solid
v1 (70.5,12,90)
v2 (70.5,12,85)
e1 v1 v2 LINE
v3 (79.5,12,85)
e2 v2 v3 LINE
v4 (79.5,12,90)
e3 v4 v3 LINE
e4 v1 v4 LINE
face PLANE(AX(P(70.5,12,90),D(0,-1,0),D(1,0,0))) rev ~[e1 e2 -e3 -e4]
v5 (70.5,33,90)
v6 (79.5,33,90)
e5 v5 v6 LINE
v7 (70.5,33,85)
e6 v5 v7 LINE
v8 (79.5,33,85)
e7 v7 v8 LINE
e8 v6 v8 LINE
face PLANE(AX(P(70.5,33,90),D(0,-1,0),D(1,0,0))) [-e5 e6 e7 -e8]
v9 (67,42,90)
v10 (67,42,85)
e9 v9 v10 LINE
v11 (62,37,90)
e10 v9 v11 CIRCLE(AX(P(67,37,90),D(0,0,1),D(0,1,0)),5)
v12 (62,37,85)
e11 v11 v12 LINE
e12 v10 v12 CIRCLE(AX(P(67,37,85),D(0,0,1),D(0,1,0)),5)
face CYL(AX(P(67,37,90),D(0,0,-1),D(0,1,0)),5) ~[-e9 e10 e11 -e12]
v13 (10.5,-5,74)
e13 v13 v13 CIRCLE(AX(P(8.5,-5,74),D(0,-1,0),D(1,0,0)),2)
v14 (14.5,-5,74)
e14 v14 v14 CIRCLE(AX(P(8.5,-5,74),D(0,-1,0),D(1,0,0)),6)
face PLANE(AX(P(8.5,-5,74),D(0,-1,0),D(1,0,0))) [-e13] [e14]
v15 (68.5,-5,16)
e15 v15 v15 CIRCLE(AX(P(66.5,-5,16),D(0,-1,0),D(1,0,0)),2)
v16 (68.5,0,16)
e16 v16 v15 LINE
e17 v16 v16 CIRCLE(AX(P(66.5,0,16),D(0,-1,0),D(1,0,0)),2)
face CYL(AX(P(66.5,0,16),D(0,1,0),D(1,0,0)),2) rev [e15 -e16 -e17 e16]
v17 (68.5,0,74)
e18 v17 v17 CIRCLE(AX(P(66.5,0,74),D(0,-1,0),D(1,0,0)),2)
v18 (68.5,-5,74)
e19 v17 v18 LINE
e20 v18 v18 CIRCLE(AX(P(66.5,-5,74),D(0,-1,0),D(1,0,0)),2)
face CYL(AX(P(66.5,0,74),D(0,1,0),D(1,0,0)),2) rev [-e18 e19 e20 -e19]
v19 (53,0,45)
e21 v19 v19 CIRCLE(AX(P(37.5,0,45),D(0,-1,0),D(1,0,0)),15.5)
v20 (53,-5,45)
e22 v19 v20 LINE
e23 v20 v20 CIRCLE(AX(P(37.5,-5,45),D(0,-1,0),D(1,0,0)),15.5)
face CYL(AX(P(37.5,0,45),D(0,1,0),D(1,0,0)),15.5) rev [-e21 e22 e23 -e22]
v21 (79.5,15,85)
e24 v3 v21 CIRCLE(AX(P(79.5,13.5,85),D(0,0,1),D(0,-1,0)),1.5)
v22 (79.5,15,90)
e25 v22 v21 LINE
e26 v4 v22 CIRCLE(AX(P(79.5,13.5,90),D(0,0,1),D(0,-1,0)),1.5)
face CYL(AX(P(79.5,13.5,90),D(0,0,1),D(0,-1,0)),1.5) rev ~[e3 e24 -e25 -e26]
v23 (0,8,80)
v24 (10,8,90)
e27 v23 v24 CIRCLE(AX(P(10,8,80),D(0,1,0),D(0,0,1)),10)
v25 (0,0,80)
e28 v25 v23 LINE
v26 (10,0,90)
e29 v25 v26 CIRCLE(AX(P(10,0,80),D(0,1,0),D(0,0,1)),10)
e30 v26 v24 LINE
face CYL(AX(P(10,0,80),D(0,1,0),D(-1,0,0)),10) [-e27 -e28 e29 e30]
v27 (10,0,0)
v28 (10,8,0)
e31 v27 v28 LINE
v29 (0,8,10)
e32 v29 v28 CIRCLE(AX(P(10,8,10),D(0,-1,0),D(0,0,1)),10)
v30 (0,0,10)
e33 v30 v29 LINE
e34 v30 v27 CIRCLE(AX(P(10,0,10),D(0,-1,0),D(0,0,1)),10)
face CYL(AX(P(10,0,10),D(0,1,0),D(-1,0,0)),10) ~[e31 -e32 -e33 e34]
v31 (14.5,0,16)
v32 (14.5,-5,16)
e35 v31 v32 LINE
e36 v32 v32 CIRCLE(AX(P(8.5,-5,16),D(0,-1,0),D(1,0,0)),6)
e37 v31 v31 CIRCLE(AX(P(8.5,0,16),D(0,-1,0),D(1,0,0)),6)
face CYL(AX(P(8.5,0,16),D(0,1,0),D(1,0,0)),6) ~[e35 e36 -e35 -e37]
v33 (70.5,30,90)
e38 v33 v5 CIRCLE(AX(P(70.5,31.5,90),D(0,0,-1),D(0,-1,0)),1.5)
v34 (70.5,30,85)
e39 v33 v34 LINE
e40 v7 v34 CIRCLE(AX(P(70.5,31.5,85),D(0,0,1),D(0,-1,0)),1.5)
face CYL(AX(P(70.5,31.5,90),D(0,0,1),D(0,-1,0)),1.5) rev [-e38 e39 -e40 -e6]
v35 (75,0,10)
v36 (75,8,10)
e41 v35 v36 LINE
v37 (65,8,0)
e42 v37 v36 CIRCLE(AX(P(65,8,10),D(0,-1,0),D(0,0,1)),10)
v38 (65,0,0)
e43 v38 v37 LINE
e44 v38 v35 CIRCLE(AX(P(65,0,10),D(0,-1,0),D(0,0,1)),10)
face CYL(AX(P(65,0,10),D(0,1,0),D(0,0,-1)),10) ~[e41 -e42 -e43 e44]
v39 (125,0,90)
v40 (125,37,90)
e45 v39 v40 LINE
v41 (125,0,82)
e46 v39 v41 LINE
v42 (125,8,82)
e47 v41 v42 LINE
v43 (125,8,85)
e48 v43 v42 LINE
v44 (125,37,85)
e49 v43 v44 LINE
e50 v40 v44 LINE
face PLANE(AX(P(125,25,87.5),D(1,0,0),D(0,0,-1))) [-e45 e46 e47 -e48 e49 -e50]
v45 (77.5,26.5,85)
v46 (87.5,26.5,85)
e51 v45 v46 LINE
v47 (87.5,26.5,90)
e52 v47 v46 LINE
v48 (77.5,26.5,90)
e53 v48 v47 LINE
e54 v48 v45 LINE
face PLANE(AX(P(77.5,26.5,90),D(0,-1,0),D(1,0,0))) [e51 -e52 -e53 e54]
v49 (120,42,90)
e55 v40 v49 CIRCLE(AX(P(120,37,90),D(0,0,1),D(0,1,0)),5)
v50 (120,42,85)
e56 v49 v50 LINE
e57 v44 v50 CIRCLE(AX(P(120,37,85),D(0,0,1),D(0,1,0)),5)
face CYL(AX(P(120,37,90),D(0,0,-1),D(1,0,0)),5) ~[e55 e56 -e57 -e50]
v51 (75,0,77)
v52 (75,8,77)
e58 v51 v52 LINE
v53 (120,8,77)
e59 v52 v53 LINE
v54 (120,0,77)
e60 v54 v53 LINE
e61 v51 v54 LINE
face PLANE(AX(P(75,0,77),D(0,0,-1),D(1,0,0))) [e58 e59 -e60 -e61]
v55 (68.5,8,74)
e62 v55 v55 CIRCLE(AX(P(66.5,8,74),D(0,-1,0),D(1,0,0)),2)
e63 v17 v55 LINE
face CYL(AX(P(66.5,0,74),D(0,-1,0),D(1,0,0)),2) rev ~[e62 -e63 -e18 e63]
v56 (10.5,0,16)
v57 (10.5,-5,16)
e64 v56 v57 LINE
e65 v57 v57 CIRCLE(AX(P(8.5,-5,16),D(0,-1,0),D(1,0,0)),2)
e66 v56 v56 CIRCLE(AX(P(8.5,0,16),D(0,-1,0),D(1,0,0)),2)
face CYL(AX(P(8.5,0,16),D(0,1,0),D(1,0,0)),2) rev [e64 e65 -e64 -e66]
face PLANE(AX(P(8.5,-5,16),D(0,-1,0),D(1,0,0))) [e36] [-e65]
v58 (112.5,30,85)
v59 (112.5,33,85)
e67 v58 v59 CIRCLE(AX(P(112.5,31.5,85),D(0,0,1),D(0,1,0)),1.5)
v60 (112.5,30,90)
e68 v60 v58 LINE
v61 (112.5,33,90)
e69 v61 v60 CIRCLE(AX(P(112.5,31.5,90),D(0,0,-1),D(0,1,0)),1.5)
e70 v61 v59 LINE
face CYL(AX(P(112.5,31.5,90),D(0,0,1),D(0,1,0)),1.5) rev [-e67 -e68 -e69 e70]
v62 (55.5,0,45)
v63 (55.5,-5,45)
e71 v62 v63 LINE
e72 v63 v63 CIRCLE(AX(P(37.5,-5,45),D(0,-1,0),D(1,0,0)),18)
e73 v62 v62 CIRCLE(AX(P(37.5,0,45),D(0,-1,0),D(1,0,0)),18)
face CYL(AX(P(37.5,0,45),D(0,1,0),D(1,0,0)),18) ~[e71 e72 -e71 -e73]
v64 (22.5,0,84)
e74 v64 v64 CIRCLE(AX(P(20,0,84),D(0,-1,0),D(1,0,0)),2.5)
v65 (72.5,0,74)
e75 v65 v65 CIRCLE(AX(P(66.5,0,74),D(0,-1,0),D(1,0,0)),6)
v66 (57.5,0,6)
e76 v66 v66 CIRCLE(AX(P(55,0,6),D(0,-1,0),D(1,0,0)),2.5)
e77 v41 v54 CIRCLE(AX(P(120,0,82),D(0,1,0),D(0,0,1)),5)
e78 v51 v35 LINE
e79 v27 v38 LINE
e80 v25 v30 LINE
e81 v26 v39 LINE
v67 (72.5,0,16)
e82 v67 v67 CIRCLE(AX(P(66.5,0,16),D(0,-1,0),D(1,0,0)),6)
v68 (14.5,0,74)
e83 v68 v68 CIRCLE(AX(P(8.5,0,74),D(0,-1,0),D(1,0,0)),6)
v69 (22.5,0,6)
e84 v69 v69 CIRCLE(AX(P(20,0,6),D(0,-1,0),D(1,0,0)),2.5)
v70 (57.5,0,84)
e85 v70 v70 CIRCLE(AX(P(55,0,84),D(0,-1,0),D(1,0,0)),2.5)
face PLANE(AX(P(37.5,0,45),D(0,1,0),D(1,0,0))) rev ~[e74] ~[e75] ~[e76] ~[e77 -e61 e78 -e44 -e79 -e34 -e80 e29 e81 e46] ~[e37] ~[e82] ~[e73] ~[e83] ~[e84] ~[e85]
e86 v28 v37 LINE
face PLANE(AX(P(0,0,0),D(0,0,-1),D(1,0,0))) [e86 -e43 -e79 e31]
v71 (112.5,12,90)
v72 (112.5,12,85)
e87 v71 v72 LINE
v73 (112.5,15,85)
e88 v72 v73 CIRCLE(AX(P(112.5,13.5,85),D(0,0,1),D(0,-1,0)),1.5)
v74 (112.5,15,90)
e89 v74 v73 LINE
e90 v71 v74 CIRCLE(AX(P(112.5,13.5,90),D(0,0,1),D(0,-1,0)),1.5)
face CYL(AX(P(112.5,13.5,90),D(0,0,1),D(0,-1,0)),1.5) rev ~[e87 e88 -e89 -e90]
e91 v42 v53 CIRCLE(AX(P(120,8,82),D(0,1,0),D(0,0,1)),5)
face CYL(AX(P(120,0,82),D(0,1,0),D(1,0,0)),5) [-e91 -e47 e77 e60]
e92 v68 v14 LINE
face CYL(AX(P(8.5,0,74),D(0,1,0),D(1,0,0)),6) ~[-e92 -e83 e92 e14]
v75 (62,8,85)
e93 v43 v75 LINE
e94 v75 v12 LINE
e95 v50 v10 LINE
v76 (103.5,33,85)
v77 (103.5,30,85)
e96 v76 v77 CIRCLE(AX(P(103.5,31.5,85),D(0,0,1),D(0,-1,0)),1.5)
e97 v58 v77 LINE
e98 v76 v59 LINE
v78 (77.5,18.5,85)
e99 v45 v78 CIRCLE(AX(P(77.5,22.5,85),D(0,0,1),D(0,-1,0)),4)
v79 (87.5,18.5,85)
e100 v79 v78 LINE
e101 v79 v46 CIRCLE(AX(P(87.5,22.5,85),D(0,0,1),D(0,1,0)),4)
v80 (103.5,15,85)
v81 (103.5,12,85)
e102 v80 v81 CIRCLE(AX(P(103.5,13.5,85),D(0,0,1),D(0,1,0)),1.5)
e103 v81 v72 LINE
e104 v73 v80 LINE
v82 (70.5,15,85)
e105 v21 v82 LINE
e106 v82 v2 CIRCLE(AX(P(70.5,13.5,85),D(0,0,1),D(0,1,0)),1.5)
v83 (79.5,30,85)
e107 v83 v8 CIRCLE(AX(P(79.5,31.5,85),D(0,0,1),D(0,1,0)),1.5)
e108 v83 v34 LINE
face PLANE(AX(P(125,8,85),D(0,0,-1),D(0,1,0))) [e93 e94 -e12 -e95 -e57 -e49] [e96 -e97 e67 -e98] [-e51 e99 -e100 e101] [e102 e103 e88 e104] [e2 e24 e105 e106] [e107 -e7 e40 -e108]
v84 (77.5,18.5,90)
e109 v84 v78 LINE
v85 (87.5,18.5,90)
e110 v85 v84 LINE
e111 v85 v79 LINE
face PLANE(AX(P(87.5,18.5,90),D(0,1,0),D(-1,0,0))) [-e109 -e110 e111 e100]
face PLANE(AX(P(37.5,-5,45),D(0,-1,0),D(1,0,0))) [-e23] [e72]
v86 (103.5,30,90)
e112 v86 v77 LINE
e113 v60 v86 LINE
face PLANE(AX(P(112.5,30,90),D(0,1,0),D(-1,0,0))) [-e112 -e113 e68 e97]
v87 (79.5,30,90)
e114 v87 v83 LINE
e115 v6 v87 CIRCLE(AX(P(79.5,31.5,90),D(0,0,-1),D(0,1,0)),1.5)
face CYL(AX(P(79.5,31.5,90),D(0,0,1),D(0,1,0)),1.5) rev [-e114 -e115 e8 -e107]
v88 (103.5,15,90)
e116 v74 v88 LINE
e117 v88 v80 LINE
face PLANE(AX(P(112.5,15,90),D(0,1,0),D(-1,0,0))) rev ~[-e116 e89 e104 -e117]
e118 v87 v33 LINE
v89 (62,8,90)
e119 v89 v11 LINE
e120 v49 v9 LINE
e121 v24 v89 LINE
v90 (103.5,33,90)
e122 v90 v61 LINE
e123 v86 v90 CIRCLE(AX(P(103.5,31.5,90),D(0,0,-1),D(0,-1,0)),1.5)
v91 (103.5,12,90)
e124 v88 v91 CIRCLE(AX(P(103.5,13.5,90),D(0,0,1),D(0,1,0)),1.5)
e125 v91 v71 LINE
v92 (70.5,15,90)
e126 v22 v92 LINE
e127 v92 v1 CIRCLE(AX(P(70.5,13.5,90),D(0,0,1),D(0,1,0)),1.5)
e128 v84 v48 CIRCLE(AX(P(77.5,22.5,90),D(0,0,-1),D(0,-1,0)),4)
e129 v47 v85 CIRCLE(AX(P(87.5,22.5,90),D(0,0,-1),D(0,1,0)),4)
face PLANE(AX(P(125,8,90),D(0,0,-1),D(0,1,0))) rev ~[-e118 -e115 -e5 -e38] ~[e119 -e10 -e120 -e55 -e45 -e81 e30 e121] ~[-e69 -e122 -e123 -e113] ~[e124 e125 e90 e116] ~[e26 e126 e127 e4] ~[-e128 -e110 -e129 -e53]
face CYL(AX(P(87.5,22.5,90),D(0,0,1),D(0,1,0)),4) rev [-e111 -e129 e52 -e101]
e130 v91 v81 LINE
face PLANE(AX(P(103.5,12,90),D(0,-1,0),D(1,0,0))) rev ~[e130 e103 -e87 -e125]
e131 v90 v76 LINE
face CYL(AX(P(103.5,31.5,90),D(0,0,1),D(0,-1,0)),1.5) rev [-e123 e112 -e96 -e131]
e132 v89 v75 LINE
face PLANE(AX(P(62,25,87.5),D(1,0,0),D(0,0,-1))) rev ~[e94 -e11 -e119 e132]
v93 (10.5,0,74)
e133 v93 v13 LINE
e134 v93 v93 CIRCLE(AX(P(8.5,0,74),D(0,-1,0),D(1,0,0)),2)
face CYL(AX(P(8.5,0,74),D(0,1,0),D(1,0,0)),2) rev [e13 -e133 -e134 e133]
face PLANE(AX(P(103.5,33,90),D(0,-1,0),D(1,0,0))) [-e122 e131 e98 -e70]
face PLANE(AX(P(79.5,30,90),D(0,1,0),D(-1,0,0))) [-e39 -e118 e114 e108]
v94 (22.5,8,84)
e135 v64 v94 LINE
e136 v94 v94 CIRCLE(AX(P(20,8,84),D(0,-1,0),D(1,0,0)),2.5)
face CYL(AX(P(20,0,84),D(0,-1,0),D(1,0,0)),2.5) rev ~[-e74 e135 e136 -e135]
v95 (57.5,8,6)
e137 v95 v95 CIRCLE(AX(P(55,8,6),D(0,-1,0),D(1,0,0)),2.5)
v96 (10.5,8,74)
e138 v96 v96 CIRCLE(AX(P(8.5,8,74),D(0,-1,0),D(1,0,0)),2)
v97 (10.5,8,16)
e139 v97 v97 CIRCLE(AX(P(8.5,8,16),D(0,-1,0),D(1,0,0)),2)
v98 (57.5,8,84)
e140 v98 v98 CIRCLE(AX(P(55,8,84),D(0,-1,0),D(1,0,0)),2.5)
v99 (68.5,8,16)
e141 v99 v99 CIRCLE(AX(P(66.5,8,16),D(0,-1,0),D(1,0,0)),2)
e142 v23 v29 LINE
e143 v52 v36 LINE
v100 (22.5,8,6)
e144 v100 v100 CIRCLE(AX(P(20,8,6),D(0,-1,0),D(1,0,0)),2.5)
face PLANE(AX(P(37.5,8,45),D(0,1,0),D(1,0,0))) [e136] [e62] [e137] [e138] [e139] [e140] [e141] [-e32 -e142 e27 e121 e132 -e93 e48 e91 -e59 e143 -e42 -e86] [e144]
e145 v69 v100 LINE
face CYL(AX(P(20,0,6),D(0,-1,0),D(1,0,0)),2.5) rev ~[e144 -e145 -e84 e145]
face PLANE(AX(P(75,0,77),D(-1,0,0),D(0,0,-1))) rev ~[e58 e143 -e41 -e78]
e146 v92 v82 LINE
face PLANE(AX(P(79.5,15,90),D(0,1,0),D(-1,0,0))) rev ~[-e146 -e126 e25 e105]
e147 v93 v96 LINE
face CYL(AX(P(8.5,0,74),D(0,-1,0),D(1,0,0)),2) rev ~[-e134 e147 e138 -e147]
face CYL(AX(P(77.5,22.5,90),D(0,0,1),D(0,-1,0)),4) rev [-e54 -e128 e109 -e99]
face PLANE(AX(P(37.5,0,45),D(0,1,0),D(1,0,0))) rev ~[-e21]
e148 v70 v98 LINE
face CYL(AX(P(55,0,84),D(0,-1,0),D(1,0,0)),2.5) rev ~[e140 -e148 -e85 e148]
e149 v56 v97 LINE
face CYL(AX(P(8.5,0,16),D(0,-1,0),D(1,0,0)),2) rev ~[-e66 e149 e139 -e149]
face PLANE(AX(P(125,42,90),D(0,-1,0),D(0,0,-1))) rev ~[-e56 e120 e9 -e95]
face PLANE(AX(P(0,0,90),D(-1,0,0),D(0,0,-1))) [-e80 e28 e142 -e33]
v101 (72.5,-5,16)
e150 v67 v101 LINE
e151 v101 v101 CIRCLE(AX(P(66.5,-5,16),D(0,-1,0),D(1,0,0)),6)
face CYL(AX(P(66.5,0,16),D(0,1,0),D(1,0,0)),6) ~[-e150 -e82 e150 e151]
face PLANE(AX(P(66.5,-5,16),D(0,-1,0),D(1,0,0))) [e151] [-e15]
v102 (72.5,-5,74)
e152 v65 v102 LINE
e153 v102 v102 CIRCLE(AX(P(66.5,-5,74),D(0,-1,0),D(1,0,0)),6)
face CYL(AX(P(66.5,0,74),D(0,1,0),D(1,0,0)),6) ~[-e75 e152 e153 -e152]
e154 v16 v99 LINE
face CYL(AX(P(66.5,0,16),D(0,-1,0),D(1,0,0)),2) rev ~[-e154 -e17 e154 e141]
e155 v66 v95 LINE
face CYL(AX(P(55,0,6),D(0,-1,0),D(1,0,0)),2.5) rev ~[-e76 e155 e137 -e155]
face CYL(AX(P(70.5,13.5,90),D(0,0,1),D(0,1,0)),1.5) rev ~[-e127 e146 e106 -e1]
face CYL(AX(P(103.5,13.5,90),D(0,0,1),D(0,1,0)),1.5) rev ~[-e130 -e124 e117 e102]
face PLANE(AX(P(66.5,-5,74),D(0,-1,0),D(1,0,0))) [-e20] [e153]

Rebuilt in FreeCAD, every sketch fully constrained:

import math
import FreeCAD as App
import Part
import Sketcher
Q = App.Units.Quantity


def edges_at(feature, points):
    """Names of the edges that pass closest to the given points."""
    edges = feature.Shape.Edges
    near = lambda p: min(range(len(edges)), key=lambda i: edges[i].distToShape(Part.Vertex(*p))[0])
    return sorted({f"Edge{near(p) + 1}" for p in points})

doc = App.newDocument("Part")
params = doc.addObject("Spreadsheet::Sheet", "Params")
for row, (alias, value) in enumerate([
    ("sketch1_width", "125 mm"),
    ("sketch1_width2", "50 mm"),
    ("sketch1_height", "90 mm"),
    ("sketch1_height2", "13 mm"),
    ("pad1_length", "8 mm"),
    ("sketch2_diameter", "36 mm"),
    ("sketch2_diameter2", "31 mm"),
    ("pad2_length", "5 mm"),
    ("sketch3_diameter", "4 mm"),
    ("fillet_radius", "10 mm"),
    ("fillet2_radius", "10 mm"),
    ("fillet3_radius", "10 mm"),
    ("sketch4_diameter", "5 mm"),
    ("sketch5_diameter", "5 mm"),
    ("sketch6_diameter", "5 mm"),
    ("sketch7_diameter", "5 mm"),
    ("sketch8_width", "34 mm"),
    ("sketch8_height", "5 mm"),
    ("pad3_length", "63 mm"),
    ("fillet4_radius", "5 mm"),
    ("fillet5_radius", "5 mm"),
    ("fillet6_radius", "5 mm"),
    ("sketch9_radius", "4 mm"),
    ("sketch9_width", "10 mm"),
    ("sketch10_radius", "1.5 mm"),
    ("sketch10_width", "9 mm"),
    ("sketch11_radius", "1.5 mm"),
    ("sketch11_width", "9 mm"),
    ("sketch12_radius", "1.5 mm"),
    ("sketch12_width", "9 mm"),
    ("sketch13_radius", "1.5 mm"),
    ("sketch13_width", "9 mm"),
    ("sketch14_diameter", "12 mm"),
    ("sketch14_diameter2", "4 mm"),
    ("pad4_length", "5 mm"),
], start=1):
    params.set(f"A{row}", alias)
    params.set(f"B{row}", "=" + value)
    params.setAlias(f"B{row}", alias)

body = doc.addObject("PartDesign::Body", "Body")

# Sketch on XZ plane
sketch1 = body.newObject("Sketcher::SketchObject", "Sketch")
sketch1.AttachmentSupport = (doc.getObject("XZ_Plane"), [""])
sketch1.MapMode = "FlatFace"
sketch1.addGeometry([
    Part.LineSegment(App.Vector(0, 0, 0), App.Vector(0, 90, 0)),  # 0
    Part.LineSegment(App.Vector(0, 90, 0), App.Vector(125, 90, 0)),  # 1
    Part.LineSegment(App.Vector(125, 90, 0), App.Vector(125, 77, 0)),  # 2
    Part.LineSegment(App.Vector(125, 77, 0), App.Vector(75, 77, 0)),  # 3
    Part.LineSegment(App.Vector(75, 77, 0), App.Vector(75, 0, 0)),  # 4
    Part.LineSegment(App.Vector(75, 0, 0), App.Vector(0, 0, 0)),  # 5
], False)
sketch1.addConstraint([
    Sketcher.Constraint("Coincident", 0, 2, 1, 1),
    Sketcher.Constraint("Coincident", 1, 2, 2, 1),
    Sketcher.Constraint("Coincident", 2, 2, 3, 1),
    Sketcher.Constraint("Coincident", 3, 2, 4, 1),
    Sketcher.Constraint("Coincident", 4, 2, 5, 1),
    Sketcher.Constraint("Coincident", 5, 2, 0, 1),
    Sketcher.Constraint("Vertical", 0),
    Sketcher.Constraint("Horizontal", 1),
    Sketcher.Constraint("Vertical", 2),
    Sketcher.Constraint("Horizontal", 3),
    Sketcher.Constraint("Vertical", 4),
    Sketcher.Constraint("Horizontal", 5),
    Sketcher.Constraint("Coincident", 5, 2, -1, 1),
    Sketcher.Constraint("DistanceX", 1, 1, 1, 2, Q("125 mm")),
    Sketcher.Constraint("DistanceX", 3, 2, 3, 1, Q("50 mm")),
    Sketcher.Constraint("DistanceY", 0, 1, 0, 2, Q("90 mm")),
    Sketcher.Constraint("DistanceY", 2, 2, 2, 1, Q("13 mm")),
])
sketch1.setExpression("Constraints[13]", "Params.sketch1_width")
sketch1.setExpression("Constraints[14]", "Params.sketch1_width2")
sketch1.setExpression("Constraints[15]", "Params.sketch1_height")
sketch1.setExpression("Constraints[16]", "Params.sketch1_height2")
pad1 = body.newObject("PartDesign::Pad", "Pad")
pad1.Profile = sketch1
pad1.setExpression("Length", "Params.pad1_length")
pad1.Reversed = True

# Sketch on XZ plane
sketch2 = body.newObject("Sketcher::SketchObject", "Sketch001")
sketch2.AttachmentSupport = (doc.getObject("XZ_Plane"), [""])
sketch2.MapMode = "FlatFace"
sketch2.addGeometry([
    Part.Circle(App.Vector(38, 45, 0), App.Vector(0, 0, 1), 18),
    Part.Circle(App.Vector(38, 45, 0), App.Vector(0, 0, 1), 16),
], False)
sketch2.addConstraint([
    Sketcher.Constraint("Coincident", 1, 3, 0, 3),
    Sketcher.Constraint("Diameter", 0, Q("36 mm")),
    Sketcher.Constraint("Diameter", 1, Q("31 mm")),
    Sketcher.Constraint("DistanceY", -1, 1, 0, 3, Q("45 mm")),
    Sketcher.Constraint("DistanceX", -1, 1, 0, 3, Q("37.5 mm")),
])
sketch2.setExpression("Constraints[1]", "Params.sketch2_diameter")
sketch2.setExpression("Constraints[2]", "Params.sketch2_diameter2")
pad2 = body.newObject("PartDesign::Pad", "Pad001")
pad2.Profile = sketch2
pad2.setExpression("Length", "Params.pad2_length")

# Sketch on XZ plane
sketch3 = body.newObject("Sketcher::SketchObject", "Sketch002")
sketch3.AttachmentSupport = (doc.getObject("XZ_Plane"), [""])
sketch3.MapMode = "FlatFace"
sketch3.addGeometry([
    Part.Circle(App.Vector(8.5, 74, 0), App.Vector(0, 0, 1), 2),
    Part.Circle(App.Vector(66.5, 74, 0), App.Vector(0, 0, 1), 2),
    Part.Circle(App.Vector(8.5, 16, 0), App.Vector(0, 0, 1), 2),
    Part.Circle(App.Vector(66.5, 16, 0), App.Vector(0, 0, 1), 2),
], False)
sketch3.addConstraint([
    Sketcher.Constraint("Equal", 0, 1),
    Sketcher.Constraint("Equal", 1, 2),
    Sketcher.Constraint("Equal", 2, 3),
    Sketcher.Constraint("Horizontal", 0, 3, 1, 3),
    Sketcher.Constraint("Horizontal", 2, 3, 3, 3),
    Sketcher.Constraint("Vertical", 0, 3, 2, 3),
    Sketcher.Constraint("Vertical", 1, 3, 3, 3),
    Sketcher.Constraint("Diameter", 0, Q("4 mm")),
    Sketcher.Constraint("DistanceY", -1, 1, 0, 3, Q("74 mm")),
    Sketcher.Constraint("DistanceY", -1, 1, 2, 3, Q("16 mm")),
    Sketcher.Constraint("DistanceX", 0, 3, 1, 3, Q("58 mm")),
    Sketcher.Constraint("DistanceX", -1, 1, 0, 3, Q("8.5 mm")),
])
sketch3.setExpression("Constraints[7]", "Params.sketch3_diameter")
pocket1 = body.newObject("PartDesign::Pocket", "Pocket")
pocket1.Profile = sketch3
pocket1.Type = "ThroughAll"
pocket1.Midplane = True
doc.recompute()

fillet = body.newObject("PartDesign::Fillet", "Fillet")
fillet.Base = (pocket1, edges_at(pocket1, [(0, 4, 0)]))
fillet.setExpression("Radius", "Params.fillet_radius")
doc.recompute()

fillet2 = body.newObject("PartDesign::Fillet", "Fillet001")
fillet2.Base = (fillet, edges_at(fillet, [(0, 4, 90)]))
fillet2.setExpression("Radius", "Params.fillet2_radius")
doc.recompute()

fillet3 = body.newObject("PartDesign::Fillet", "Fillet002")
fillet3.Base = (fillet2, edges_at(fillet2, [(75, 4, 0)]))
fillet3.setExpression("Radius", "Params.fillet3_radius")

# Sketch on XZ plane
sketch4 = body.newObject("Sketcher::SketchObject", "Sketch003")
sketch4.AttachmentSupport = (doc.getObject("XZ_Plane"), [""])
sketch4.MapMode = "FlatFace"
sketch4.addGeometry(Part.Circle(App.Vector(55, 6, 0), App.Vector(0, 0, 1), 2.5), False)
sketch4.addConstraint([
    Sketcher.Constraint("Diameter", 0, Q("5 mm")),
    Sketcher.Constraint("DistanceX", -1, 1, 0, 3, Q("55 mm")),
    Sketcher.Constraint("DistanceY", -1, 1, 0, 3, Q("6 mm")),
])
sketch4.setExpression("Constraints[0]", "Params.sketch4_diameter")
pocket2 = body.newObject("PartDesign::Pocket", "Pocket001")
pocket2.Profile = sketch4
pocket2.Type = "UpToFirst"

# Sketch on XZ plane
sketch5 = body.newObject("Sketcher::SketchObject", "Sketch004")
sketch5.AttachmentSupport = (doc.getObject("XZ_Plane"), [""])
sketch5.MapMode = "FlatFace"
sketch5.addGeometry(Part.Circle(App.Vector(20, 84, 0), App.Vector(0, 0, 1), 2.5), False)
sketch5.addConstraint([
    Sketcher.Constraint("Diameter", 0, Q("5 mm")),
    Sketcher.Constraint("DistanceX", -1, 1, 0, 3, Q("20 mm")),
    Sketcher.Constraint("DistanceY", -1, 1, 0, 3, Q("84 mm")),
])
sketch5.setExpression("Constraints[0]", "Params.sketch5_diameter")
pocket3 = body.newObject("PartDesign::Pocket", "Pocket002")
pocket3.Profile = sketch5
pocket3.Type = "UpToFirst"

# Sketch on XZ plane
sketch6 = body.newObject("Sketcher::SketchObject", "Sketch005")
sketch6.AttachmentSupport = (doc.getObject("XZ_Plane"), [""])
sketch6.MapMode = "FlatFace"
sketch6.addGeometry(Part.Circle(App.Vector(55, 84, 0), App.Vector(0, 0, 1), 2.5), False)
sketch6.addConstraint([
    Sketcher.Constraint("Diameter", 0, Q("5 mm")),
    Sketcher.Constraint("DistanceX", -1, 1, 0, 3, Q("55 mm")),
    Sketcher.Constraint("DistanceY", -1, 1, 0, 3, Q("84 mm")),
])
sketch6.setExpression("Constraints[0]", "Params.sketch6_diameter")
pocket4 = body.newObject("PartDesign::Pocket", "Pocket003")
pocket4.Profile = sketch6
pocket4.Type = "UpToFirst"

# Sketch on XZ plane
sketch7 = body.newObject("Sketcher::SketchObject", "Sketch006")
sketch7.AttachmentSupport = (doc.getObject("XZ_Plane"), [""])
sketch7.MapMode = "FlatFace"
sketch7.addGeometry(Part.Circle(App.Vector(20, 6, 0), App.Vector(0, 0, 1), 2.5), False)
sketch7.addConstraint([
    Sketcher.Constraint("Diameter", 0, Q("5 mm")),
    Sketcher.Constraint("DistanceX", -1, 1, 0, 3, Q("20 mm")),
    Sketcher.Constraint("DistanceY", -1, 1, 0, 3, Q("6 mm")),
])
sketch7.setExpression("Constraints[0]", "Params.sketch7_diameter")
pocket5 = body.newObject("PartDesign::Pocket", "Pocket004")
pocket5.Profile = sketch7
pocket5.Type = "UpToFirst"

# Sketch on YZ plane
sketch8 = body.newObject("Sketcher::SketchObject", "Sketch007")
sketch8.AttachmentSupport = (doc.getObject("YZ_Plane"), [""])
sketch8.MapMode = "FlatFace"
sketch8.AttachmentOffset = App.Placement(App.Vector(0, 0, 125), App.Rotation())
sketch8.addGeometry([
    Part.LineSegment(App.Vector(42, 90, 0), App.Vector(8, 90, 0)),
    Part.LineSegment(App.Vector(8, 90, 0), App.Vector(8, 85, 0)),
    Part.LineSegment(App.Vector(8, 85, 0), App.Vector(42, 85, 0)),
    Part.LineSegment(App.Vector(42, 85, 0), App.Vector(42, 90, 0)),
], False)
sketch8.addConstraint([
    Sketcher.Constraint("Coincident", 0, 2, 1, 1),
    Sketcher.Constraint("Coincident", 1, 2, 2, 1),
    Sketcher.Constraint("Coincident", 2, 2, 3, 1),
    Sketcher.Constraint("Coincident", 3, 2, 0, 1),
    Sketcher.Constraint("Horizontal", 0),
    Sketcher.Constraint("Vertical", 1),
    Sketcher.Constraint("Horizontal", 2),
    Sketcher.Constraint("Vertical", 3),
    Sketcher.Constraint("DistanceX", 0, 2, 0, 1, Q("34 mm")),
    Sketcher.Constraint("DistanceY", 1, 2, 1, 1, Q("5 mm")),
    Sketcher.Constraint("DistanceX", -1, 1, 0, 2, Q("8 mm")),
    Sketcher.Constraint("DistanceY", -1, 1, 0, 2, Q("90 mm")),
])
sketch8.setExpression("Constraints[8]", "Params.sketch8_width")
sketch8.setExpression("Constraints[9]", "Params.sketch8_height")
pad3 = body.newObject("PartDesign::Pad", "Pad002")
pad3.Profile = sketch8
pad3.setExpression("Length", "Params.pad3_length")
pad3.Reversed = True
doc.recompute()

fillet4 = body.newObject("PartDesign::Fillet", "Fillet003")
fillet4.Base = (pad3, edges_at(pad3, [(125, 42, 87.5)]))
fillet4.setExpression("Radius", "Params.fillet4_radius")
doc.recompute()

fillet5 = body.newObject("PartDesign::Fillet", "Fillet004")
fillet5.Base = (fillet4, edges_at(fillet4, [(125, 4, 77)]))
fillet5.setExpression("Radius", "Params.fillet5_radius")
doc.recompute()

fillet6 = body.newObject("PartDesign::Fillet", "Fillet005")
fillet6.Base = (fillet5, edges_at(fillet5, [(62, 42, 87.5)]))
fillet6.setExpression("Radius", "Params.fillet6_radius")

# Sketch on XY plane
sketch9 = body.newObject("Sketcher::SketchObject", "Sketch008")
sketch9.AttachmentSupport = (doc.getObject("XY_Plane"), [""])
sketch9.MapMode = "FlatFace"
sketch9.AttachmentOffset = App.Placement(App.Vector(0, 0, 90), App.Rotation())
sketch9.addGeometry([
    Part.LineSegment(App.Vector(87.5, 26.5, 0), App.Vector(77.5, 26.5, 0)),
    Part.ArcOfCircle(Part.Circle(App.Vector(77.5, 22.5, 0), App.Vector(0, 0, 1), 4), math.radians(90), math.radians(270)),
    Part.LineSegment(App.Vector(77.5, 18.5, 0), App.Vector(87.5, 18.5, 0)),
    Part.ArcOfCircle(Part.Circle(App.Vector(87.5, 22.5, 0), App.Vector(0, 0, 1), 4), math.radians(-90), math.radians(90)),
], False)
sketch9.addConstraint([
    Sketcher.Constraint("Tangent", 0, 2, 1, 1),
    Sketcher.Constraint("Tangent", 1, 2, 2, 1),
    Sketcher.Constraint("Tangent", 2, 2, 3, 1),
    Sketcher.Constraint("Tangent", 3, 2, 0, 1),
    Sketcher.Constraint("Horizontal", 0),
    Sketcher.Constraint("Horizontal", 2),
    Sketcher.Constraint("Radius", 1, Q("4 mm")),
    Sketcher.Constraint("DistanceX", 0, 2, 0, 1, Q("10 mm")),
    Sketcher.Constraint("DistanceX", -1, 1, 1, 3, Q("77.5 mm")),
    Sketcher.Constraint("DistanceY", -1, 1, 1, 3, Q("22.5 mm")),
])
sketch9.setExpression("Constraints[6]", "Params.sketch9_radius")
sketch9.setExpression("Constraints[7]", "Params.sketch9_width")
pocket6 = body.newObject("PartDesign::Pocket", "Pocket005")
pocket6.Profile = sketch9
pocket6.Type = "UpToFirst"

# Sketch on XY plane
sketch10 = body.newObject("Sketcher::SketchObject", "Sketch009")
sketch10.AttachmentSupport = (doc.getObject("XY_Plane"), [""])
sketch10.MapMode = "FlatFace"
sketch10.AttachmentOffset = App.Placement(App.Vector(0, 0, 90), App.Rotation())
sketch10.addGeometry([
    Part.LineSegment(App.Vector(79.5, 33, 0), App.Vector(70.5, 33, 0)),
    Part.ArcOfCircle(Part.Circle(App.Vector(70.5, 31.5, 0), App.Vector(0, 0, 1), 1.5), math.radians(90), math.radians(270)),
    Part.LineSegment(App.Vector(70.5, 30, 0), App.Vector(79.5, 30, 0)),
    Part.ArcOfCircle(Part.Circle(App.Vector(79.5, 31.5, 0), App.Vector(0, 0, 1), 1.5), math.radians(-90), math.radians(90)),
], False)
sketch10.addConstraint([
    Sketcher.Constraint("Tangent", 0, 2, 1, 1),
    Sketcher.Constraint("Tangent", 1, 2, 2, 1),
    Sketcher.Constraint("Tangent", 2, 2, 3, 1),
    Sketcher.Constraint("Tangent", 3, 2, 0, 1),
    Sketcher.Constraint("Horizontal", 0),
    Sketcher.Constraint("Horizontal", 2),
    Sketcher.Constraint("Radius", 1, Q("1.5 mm")),
    Sketcher.Constraint("DistanceX", 0, 2, 0, 1, Q("9 mm")),
    Sketcher.Constraint("DistanceY", -1, 1, 0, 2, Q("33 mm")),
    Sketcher.Constraint("DistanceX", -1, 1, 1, 3, Q("70.5 mm")),
])
sketch10.setExpression("Constraints[6]", "Params.sketch10_radius")
sketch10.setExpression("Constraints[7]", "Params.sketch10_width")
pocket7 = body.newObject("PartDesign::Pocket", "Pocket006")
pocket7.Profile = sketch10
pocket7.Type = "UpToFirst"

# Sketch on XY plane
sketch11 = body.newObject("Sketcher::SketchObject", "Sketch010")
sketch11.AttachmentSupport = (doc.getObject("XY_Plane"), [""])
sketch11.MapMode = "FlatFace"
sketch11.AttachmentOffset = App.Placement(App.Vector(0, 0, 90), App.Rotation())
sketch11.addGeometry([
    Part.LineSegment(App.Vector(70.5, 12, 0), App.Vector(79.5, 12, 0)),
    Part.ArcOfCircle(Part.Circle(App.Vector(79.5, 13.5, 0), App.Vector(0, 0, 1), 1.5), math.radians(-90), math.radians(90)),
    Part.LineSegment(App.Vector(79.5, 15, 0), App.Vector(70.5, 15, 0)),
    Part.ArcOfCircle(Part.Circle(App.Vector(70.5, 13.5, 0), App.Vector(0, 0, 1), 1.5), math.radians(90), math.radians(270)),
], False)
sketch11.addConstraint([
    Sketcher.Constraint("Tangent", 0, 2, 1, 1),
    Sketcher.Constraint("Tangent", 1, 2, 2, 1),
    Sketcher.Constraint("Tangent", 2, 2, 3, 1),
    Sketcher.Constraint("Tangent", 3, 2, 0, 1),
    Sketcher.Constraint("Horizontal", 0),
    Sketcher.Constraint("Horizontal", 2),
    Sketcher.Constraint("Radius", 1, Q("1.5 mm")),
    Sketcher.Constraint("DistanceX", 0, 1, 0, 2, Q("9 mm")),
    Sketcher.Constraint("DistanceY", -1, 1, 0, 2, Q("12 mm")),
    Sketcher.Constraint("DistanceX", -1, 1, 1, 3, Q("79.5 mm")),
])
sketch11.setExpression("Constraints[6]", "Params.sketch11_radius")
sketch11.setExpression("Constraints[7]", "Params.sketch11_width")
pocket8 = body.newObject("PartDesign::Pocket", "Pocket007")
pocket8.Profile = sketch11
pocket8.Type = "UpToFirst"

# Sketch on XY plane
sketch12 = body.newObject("Sketcher::SketchObject", "Sketch011")
sketch12.AttachmentSupport = (doc.getObject("XY_Plane"), [""])
sketch12.MapMode = "FlatFace"
sketch12.AttachmentOffset = App.Placement(App.Vector(0, 0, 90), App.Rotation())
sketch12.addGeometry([
    Part.LineSegment(App.Vector(112.5, 33, 0), App.Vector(103.5, 33, 0)),
    Part.ArcOfCircle(Part.Circle(App.Vector(103.5, 31.5, 0), App.Vector(0, 0, 1), 1.5), math.radians(90), math.radians(270)),
    Part.LineSegment(App.Vector(103.5, 30, 0), App.Vector(112.5, 30, 0)),
    Part.ArcOfCircle(Part.Circle(App.Vector(112.5, 31.5, 0), App.Vector(0, 0, 1), 1.5), math.radians(-90), math.radians(90)),
], False)
sketch12.addConstraint([
    Sketcher.Constraint("Tangent", 0, 2, 1, 1),
    Sketcher.Constraint("Tangent", 1, 2, 2, 1),
    Sketcher.Constraint("Tangent", 2, 2, 3, 1),
    Sketcher.Constraint("Tangent", 3, 2, 0, 1),
    Sketcher.Constraint("Horizontal", 0),
    Sketcher.Constraint("Horizontal", 2),
    Sketcher.Constraint("Radius", 1, Q("1.5 mm")),
    Sketcher.Constraint("DistanceX", 0, 2, 0, 1, Q("9 mm")),
    Sketcher.Constraint("DistanceY", -1, 1, 0, 2, Q("33 mm")),
    Sketcher.Constraint("DistanceX", -1, 1, 1, 3, Q("103.5 mm")),
])
sketch12.setExpression("Constraints[6]", "Params.sketch12_radius")
sketch12.setExpression("Constraints[7]", "Params.sketch12_width")
pocket9 = body.newObject("PartDesign::Pocket", "Pocket008")
pocket9.Profile = sketch12
pocket9.Type = "UpToFirst"

# Sketch on XY plane
sketch13 = body.newObject("Sketcher::SketchObject", "Sketch012")
sketch13.AttachmentSupport = (doc.getObject("XY_Plane"), [""])
sketch13.MapMode = "FlatFace"
sketch13.AttachmentOffset = App.Placement(App.Vector(0, 0, 90), App.Rotation())
sketch13.addGeometry([
    Part.LineSegment(App.Vector(103.5, 12, 0), App.Vector(112.5, 12, 0)),
    Part.ArcOfCircle(Part.Circle(App.Vector(112.5, 13.5, 0), App.Vector(0, 0, 1), 1.5), math.radians(-90), math.radians(90)),
    Part.LineSegment(App.Vector(112.5, 15, 0), App.Vector(103.5, 15, 0)),
    Part.ArcOfCircle(Part.Circle(App.Vector(103.5, 13.5, 0), App.Vector(0, 0, 1), 1.5), math.radians(90), math.radians(270)),
], False)
sketch13.addConstraint([
    Sketcher.Constraint("Tangent", 0, 2, 1, 1),
    Sketcher.Constraint("Tangent", 1, 2, 2, 1),
    Sketcher.Constraint("Tangent", 2, 2, 3, 1),
    Sketcher.Constraint("Tangent", 3, 2, 0, 1),
    Sketcher.Constraint("Horizontal", 0),
    Sketcher.Constraint("Horizontal", 2),
    Sketcher.Constraint("Radius", 1, Q("1.5 mm")),
    Sketcher.Constraint("DistanceX", 0, 1, 0, 2, Q("9 mm")),
    Sketcher.Constraint("DistanceY", -1, 1, 0, 2, Q("12 mm")),
    Sketcher.Constraint("DistanceX", -1, 1, 1, 3, Q("112.5 mm")),
])
sketch13.setExpression("Constraints[6]", "Params.sketch13_radius")
sketch13.setExpression("Constraints[7]", "Params.sketch13_width")
pocket10 = body.newObject("PartDesign::Pocket", "Pocket009")
pocket10.Profile = sketch13
pocket10.Type = "UpToFirst"

# Sketch on XZ plane
sketch14 = body.newObject("Sketcher::SketchObject", "Sketch013")
sketch14.AttachmentSupport = (doc.getObject("XZ_Plane"), [""])
sketch14.MapMode = "FlatFace"
sketch14.addGeometry([
    Part.Circle(App.Vector(8.5, 74, 0), App.Vector(0, 0, 1), 6),  # 0
    Part.Circle(App.Vector(8.5, 74, 0), App.Vector(0, 0, 1), 2),  # 1
    Part.Circle(App.Vector(66.5, 74, 0), App.Vector(0, 0, 1), 6),  # 2
    Part.Circle(App.Vector(66.5, 74, 0), App.Vector(0, 0, 1), 2),  # 3
    Part.Circle(App.Vector(66.5, 16, 0), App.Vector(0, 0, 1), 6),  # 4
    Part.Circle(App.Vector(66.5, 16, 0), App.Vector(0, 0, 1), 2),  # 5
    Part.Circle(App.Vector(8.5, 16, 0), App.Vector(0, 0, 1), 6),  # 6
    Part.Circle(App.Vector(8.5, 16, 0), App.Vector(0, 0, 1), 2),  # 7
], False)
sketch14.addConstraint([
    Sketcher.Constraint("Coincident", 1, 3, 0, 3),
    Sketcher.Constraint("Coincident", 3, 3, 2, 3),
    Sketcher.Constraint("Coincident", 5, 3, 4, 3),
    Sketcher.Constraint("Coincident", 7, 3, 6, 3),
    Sketcher.Constraint("Equal", 0, 2),
    Sketcher.Constraint("Equal", 1, 3),
    Sketcher.Constraint("Equal", 2, 4),
    Sketcher.Constraint("Equal", 3, 5),
    Sketcher.Constraint("Equal", 4, 6),
    Sketcher.Constraint("Equal", 5, 7),
    Sketcher.Constraint("Horizontal", 1, 3, 2, 3),
    Sketcher.Constraint("Horizontal", 5, 3, 6, 3),
    Sketcher.Constraint("Vertical", 3, 3, 4, 3),
    Sketcher.Constraint("Vertical", 1, 3, 6, 3),
    Sketcher.Constraint("Diameter", 0, Q("12 mm")),
    Sketcher.Constraint("Diameter", 1, Q("4 mm")),
    Sketcher.Constraint("DistanceY", -1, 1, 0, 3, Q("74 mm")),
    Sketcher.Constraint("DistanceY", -1, 1, 4, 3, Q("16 mm")),
    Sketcher.Constraint("DistanceX", 0, 3, 2, 3, Q("58 mm")),
    Sketcher.Constraint("DistanceX", -1, 1, 0, 3, Q("8.5 mm")),
])
sketch14.setExpression("Constraints[14]", "Params.sketch14_diameter")
sketch14.setExpression("Constraints[15]", "Params.sketch14_diameter2")
pad4 = body.newObject("PartDesign::Pad", "Pad003")
pad4.Profile = sketch14
pad4.setExpression("Length", "Params.pad4_length")

doc.recompute()
